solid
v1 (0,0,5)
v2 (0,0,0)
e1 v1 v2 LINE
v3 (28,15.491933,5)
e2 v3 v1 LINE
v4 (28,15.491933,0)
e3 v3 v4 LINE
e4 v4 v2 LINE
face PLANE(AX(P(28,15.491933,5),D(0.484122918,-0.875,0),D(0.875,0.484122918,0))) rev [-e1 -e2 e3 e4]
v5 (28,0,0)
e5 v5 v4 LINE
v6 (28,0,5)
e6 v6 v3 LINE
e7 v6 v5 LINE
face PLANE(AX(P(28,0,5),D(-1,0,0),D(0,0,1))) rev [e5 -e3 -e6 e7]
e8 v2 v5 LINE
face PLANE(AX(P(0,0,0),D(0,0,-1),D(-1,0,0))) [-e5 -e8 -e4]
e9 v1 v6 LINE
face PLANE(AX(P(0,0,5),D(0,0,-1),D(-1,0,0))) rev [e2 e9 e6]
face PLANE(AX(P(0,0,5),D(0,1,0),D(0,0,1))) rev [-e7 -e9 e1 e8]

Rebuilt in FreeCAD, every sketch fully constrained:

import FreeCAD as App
import Part
import Sketcher
from FreeCAD import Vector
Q = App.Units.Quantity

doc = App.newDocument("Part")
body = doc.addObject("PartDesign::Body", "Body")

sketch1 = body.newObject("Sketcher::SketchObject", "Sketch")
sketch1.AttachmentSupport = (doc.getObject("XY_Plane"), [""])
sketch1.MapMode = "FlatFace"
sketch1.addGeometry([
    Part.LineSegment(Vector(0, 0, 0), Vector(28, 0, 0)),
    Part.LineSegment(Vector(28, 0, 0), Vector(28, 15, 0)),
    Part.LineSegment(Vector(28, 15, 0), Vector(0, 0, 0)),
], False)
sketch1.addConstraint([
    Sketcher.Constraint("Coincident", 0, 2, 1, 1),
    Sketcher.Constraint("Coincident", 1, 2, 2, 1),
    Sketcher.Constraint("Coincident", 2, 2, 0, 1),
    Sketcher.Constraint("Horizontal", 0),
    Sketcher.Constraint("Vertical", 1),
    Sketcher.Constraint("Coincident", 2, 2, -1, 1),
    Sketcher.Constraint("DistanceX", 0, 1, 0, 2, Q("28 mm")),
    Sketcher.Constraint("Distance", 2, Q("32 mm")),
])
pad1 = body.newObject("PartDesign::Pad", "Pad")
pad1.Profile = sketch1
pad1.Length = 5

doc.recompute()
